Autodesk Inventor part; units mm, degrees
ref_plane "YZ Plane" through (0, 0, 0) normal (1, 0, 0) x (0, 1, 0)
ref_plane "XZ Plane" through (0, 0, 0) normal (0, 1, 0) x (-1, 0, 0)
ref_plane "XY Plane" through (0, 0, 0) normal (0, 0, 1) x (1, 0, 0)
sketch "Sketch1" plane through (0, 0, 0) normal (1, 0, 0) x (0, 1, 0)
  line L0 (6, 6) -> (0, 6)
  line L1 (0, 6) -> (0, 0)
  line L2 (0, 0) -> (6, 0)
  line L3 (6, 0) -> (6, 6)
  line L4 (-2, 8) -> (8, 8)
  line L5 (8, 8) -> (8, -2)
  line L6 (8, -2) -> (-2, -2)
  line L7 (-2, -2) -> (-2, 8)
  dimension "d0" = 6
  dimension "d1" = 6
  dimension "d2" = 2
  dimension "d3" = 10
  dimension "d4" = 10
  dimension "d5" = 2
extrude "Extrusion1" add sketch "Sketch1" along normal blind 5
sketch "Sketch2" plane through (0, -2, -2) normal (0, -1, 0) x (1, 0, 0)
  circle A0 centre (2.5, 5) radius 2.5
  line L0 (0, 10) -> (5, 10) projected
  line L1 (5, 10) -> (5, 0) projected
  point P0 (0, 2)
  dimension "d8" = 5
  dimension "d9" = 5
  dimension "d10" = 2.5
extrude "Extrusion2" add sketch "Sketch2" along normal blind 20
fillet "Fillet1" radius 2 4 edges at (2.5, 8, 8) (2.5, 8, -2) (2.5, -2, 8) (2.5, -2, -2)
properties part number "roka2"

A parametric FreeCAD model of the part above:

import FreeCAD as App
import Part
import Sketcher


def edges_at(feature, points):
    """Names of the edges that pass closest to the given points."""
    edges = feature.Shape.Edges
    near = lambda p: min(range(len(edges)), key=lambda i: edges[i].distToShape(Part.Vertex(*p))[0])
    return sorted({f"Edge{near(p) + 1}" for p in points})


def add_polygon(sketch, points):
    """Adds a closed chain of lines whose ends are joined by coincident constraints."""
    first, n = sketch.GeometryCount, len(points)
    for a, b in zip(points, points[1:] + points[:1]):
        sketch.addGeometry(Part.LineSegment(App.Vector(*a, 0), App.Vector(*b, 0)), False)
    for i in range(n):
        sketch.addConstraint(Sketcher.Constraint("Coincident", first + i, 2, first + (i + 1) % n, 1))

doc = App.newDocument("Part")
params = doc.addObject("Spreadsheet::Sheet", "Params")
for row, (alias, value) in enumerate([
    ("sketch1_width", "10 mm"),
    ("sketch1_width2", "6 mm"),
    ("pad1_length", "5 mm"),
    ("sketch2_diameter", "5 mm"),
    ("pad2_length", "20 mm"),
    ("fillet_radius", "2 mm"),
], start=1):
    params.set(f"A{row}", alias)
    params.set(f"B{row}", "=" + value)
    params.setAlias(f"B{row}", alias)

body = doc.addObject("PartDesign::Body", "Body")

sketch1 = body.newObject("Sketcher::SketchObject", "Sketch")
sketch1.AttachmentSupport = (doc.getObject("YZ_Plane"), [""])
sketch1.MapMode = "FlatFace"
add_polygon(sketch1, [(8, 8), (-2, 8), (-2, -2), (8, -2)])
add_polygon(sketch1, [(0, 6), (6, 6), (6, 0), (0, 0)])
sketch1.addConstraint([
    Sketcher.Constraint("Horizontal", 0),
    Sketcher.Constraint("Vertical", 1),
    Sketcher.Constraint("Horizontal", 2),
    Sketcher.Constraint("Vertical", 3),
    Sketcher.Constraint("Horizontal", 4),
    Sketcher.Constraint("Vertical", 5),
    Sketcher.Constraint("Horizontal", 6),
    Sketcher.Constraint("Vertical", 7),
    Sketcher.Constraint("Coincident", 6, 2, -1, 1),
    Sketcher.Constraint("Equal", 2, 1),
    Sketcher.Constraint("Equal", 6, 5),
    Sketcher.Constraint("DistanceX", 0, 2, 0, 1, 10.0),
    Sketcher.Constraint("DistanceX", 4, 1, 4, 2, 6.0),
    Sketcher.Constraint("DistanceX", 0, 2, -1, 1, 2.0),
    Sketcher.Constraint("DistanceY", 1, 2, -1, 1, 2.0),
])
sketch1.setExpression("Constraints[19]", "Params.sketch1_width")
sketch1.setExpression("Constraints[20]", "Params.sketch1_width2")
pad1 = body.newObject("PartDesign::Pad", "Pad")
pad1.Profile = sketch1
pad1.setExpression("Length", "Params.pad1_length")

sketch2 = body.newObject("Sketcher::SketchObject", "Sketch001")
sketch2.AttachmentSupport = (doc.getObject("XZ_Plane"), [""])
sketch2.MapMode = "FlatFace"
sketch2.AttachmentOffset = App.Placement(App.Vector(0, 0, 2), App.Rotation())
sketch2.addGeometry(Part.Circle(App.Vector(2.5, 3, 0), App.Vector(0, 0, 1), 2.5), False)
sketch2.addConstraint([
    Sketcher.Constraint("Diameter", 0, 5.0),
    Sketcher.Constraint("DistanceX", -1, 1, 0, 3, 2.5),
    Sketcher.Constraint("DistanceY", -1, 1, 0, 3, 3.0),
])
sketch2.setExpression("Constraints[0]", "Params.sketch2_diameter")
pad2 = body.newObject("PartDesign::Pad", "Pad001")
pad2.Profile = sketch2
pad2.setExpression("Length", "Params.pad2_length")
doc.recompute()

fillet = body.newObject("PartDesign::Fillet", "Fillet")
fillet.Base = (pad2, edges_at(pad2, [
    (2.5, 8, 8),
    (2.5, 8, -2),
    (2.5, -2, 8),
    (2.5, -2, -2),
]))
fillet.setExpression("Radius", "Params.fillet_radius")

doc.recompute()
